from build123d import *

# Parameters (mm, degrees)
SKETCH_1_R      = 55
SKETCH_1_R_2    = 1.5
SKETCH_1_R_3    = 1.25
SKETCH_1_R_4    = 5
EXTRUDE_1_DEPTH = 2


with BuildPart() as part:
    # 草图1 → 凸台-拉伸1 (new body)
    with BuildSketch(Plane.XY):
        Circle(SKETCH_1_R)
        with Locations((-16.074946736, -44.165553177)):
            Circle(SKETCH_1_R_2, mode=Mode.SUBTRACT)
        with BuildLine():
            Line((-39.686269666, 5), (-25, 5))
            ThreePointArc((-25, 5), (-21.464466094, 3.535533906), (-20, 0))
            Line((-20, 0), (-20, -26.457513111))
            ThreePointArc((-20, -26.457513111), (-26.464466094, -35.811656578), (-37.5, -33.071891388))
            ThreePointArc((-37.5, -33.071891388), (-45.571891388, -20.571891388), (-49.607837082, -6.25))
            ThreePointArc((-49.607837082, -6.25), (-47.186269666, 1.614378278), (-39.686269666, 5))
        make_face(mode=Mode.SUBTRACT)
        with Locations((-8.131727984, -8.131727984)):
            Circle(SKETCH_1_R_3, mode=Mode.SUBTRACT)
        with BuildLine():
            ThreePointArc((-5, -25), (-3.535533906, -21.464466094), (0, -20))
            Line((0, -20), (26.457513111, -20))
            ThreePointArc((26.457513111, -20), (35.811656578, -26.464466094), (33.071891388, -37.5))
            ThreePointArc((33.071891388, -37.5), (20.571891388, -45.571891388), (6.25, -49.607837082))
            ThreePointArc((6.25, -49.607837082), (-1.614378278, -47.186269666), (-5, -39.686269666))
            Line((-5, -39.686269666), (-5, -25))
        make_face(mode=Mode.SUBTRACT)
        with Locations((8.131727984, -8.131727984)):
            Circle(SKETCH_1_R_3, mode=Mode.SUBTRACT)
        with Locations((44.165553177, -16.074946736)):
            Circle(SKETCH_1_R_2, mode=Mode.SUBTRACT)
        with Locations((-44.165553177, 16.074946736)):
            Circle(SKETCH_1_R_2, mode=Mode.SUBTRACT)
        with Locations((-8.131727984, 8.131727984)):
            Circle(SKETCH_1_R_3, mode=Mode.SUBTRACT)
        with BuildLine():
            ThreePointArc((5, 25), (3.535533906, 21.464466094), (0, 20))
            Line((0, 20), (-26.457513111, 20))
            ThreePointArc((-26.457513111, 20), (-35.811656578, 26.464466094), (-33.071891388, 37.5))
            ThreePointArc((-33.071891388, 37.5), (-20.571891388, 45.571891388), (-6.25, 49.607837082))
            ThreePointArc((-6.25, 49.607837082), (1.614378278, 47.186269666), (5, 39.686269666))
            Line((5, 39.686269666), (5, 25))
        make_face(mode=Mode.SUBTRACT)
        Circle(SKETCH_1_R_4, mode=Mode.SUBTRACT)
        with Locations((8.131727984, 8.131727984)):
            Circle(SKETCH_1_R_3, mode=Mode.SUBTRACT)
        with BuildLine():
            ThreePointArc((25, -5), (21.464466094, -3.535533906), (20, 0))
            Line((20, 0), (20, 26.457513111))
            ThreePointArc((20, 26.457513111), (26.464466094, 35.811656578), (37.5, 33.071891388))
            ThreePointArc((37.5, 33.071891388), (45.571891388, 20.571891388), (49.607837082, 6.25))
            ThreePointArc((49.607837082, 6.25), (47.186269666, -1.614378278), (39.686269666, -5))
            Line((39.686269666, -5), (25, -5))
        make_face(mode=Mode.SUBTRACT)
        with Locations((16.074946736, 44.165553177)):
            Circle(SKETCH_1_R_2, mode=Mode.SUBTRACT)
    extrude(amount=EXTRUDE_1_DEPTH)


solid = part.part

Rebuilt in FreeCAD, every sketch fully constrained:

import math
import FreeCAD as App
import Part
import Sketcher
from FreeCAD import Vector
Q = App.Units.Quantity

doc = App.newDocument("Part")
body = doc.addObject("PartDesign::Body", "Body")

sketch1 = doc.addObject("Sketcher::SketchObject", "Sketch")
body.addObject(sketch1)
sketch1.AttachmentSupport = (doc.XY_Plane, [""])
sketch1.MapMode = "FlatFace"
sketch1.addGeometry([
    Part.Circle(Vector(0, 0, 0), Vector(0, 0, 1), 55),
    Part.Circle(Vector(-16.074947, -44.165553, 0), Vector(0, 0, 1), 1.5),
    Part.ArcOfCircle(Part.Circle(Vector(-39.68627, -5, 0), Vector(0, 0, 1), 10), math.radians(90), math.radians(187.180756)),
    Part.LineSegment(Vector(-39.68627, 5, 0), Vector(-25, 5, 0)),
    Part.ArcOfCircle(Part.Circle(Vector(-25, 0, 0), Vector(0, 0, 1), 5), math.radians(0), math.radians(90)),
    Part.LineSegment(Vector(-20, 0, 0), Vector(-20, -26.457513, 0)),
    Part.ArcOfCircle(Part.Circle(Vector(-30, -26.457513, 0), Vector(0, 0, 1), 10), math.radians(-138.590378), math.radians(0)),
    Part.ArcOfCircle(Part.Circle(Vector(0, 0, 0), Vector(0, 0, 1), 50), math.radians(-172.819244), math.radians(-138.590378)),
    Part.Circle(Vector(-8.131728, -8.131728, 0), Vector(0, 0, 1), 1.25),
    Part.LineSegment(Vector(-5, -39.68627, 0), Vector(-5, -25, 0)),
    Part.ArcOfCircle(Part.Circle(Vector(0, -25, 0), Vector(0, 0, 1), 5), math.radians(90), math.radians(180)),
    Part.LineSegment(Vector(0, -20, 0), Vector(26.457513, -20, 0)),
    Part.ArcOfCircle(Part.Circle(Vector(26.457513, -30, 0), Vector(0, 0, 1), 10), math.radians(-48.590378), math.radians(90)),
    Part.ArcOfCircle(Part.Circle(Vector(0, 0, 0), Vector(0, 0, 1), 50), math.radians(-82.819244), math.radians(-48.590378)),
    Part.ArcOfCircle(Part.Circle(Vector(5, -39.68627, 0), Vector(0, 0, 1), 10), math.radians(180), math.radians(277.180756)),
    Part.Circle(Vector(8.131728, -8.131728, 0), Vector(0, 0, 1), 1.25),
    Part.Circle(Vector(44.165553, -16.074947, 0), Vector(0, 0, 1), 1.5),
    Part.Circle(Vector(-44.165553, 16.074947, 0), Vector(0, 0, 1), 1.5),
    Part.Circle(Vector(-8.131728, 8.131728, 0), Vector(0, 0, 1), 1.25),
    Part.LineSegment(Vector(5, 39.68627, 0), Vector(5, 25, 0)),
    Part.ArcOfCircle(Part.Circle(Vector(0, 25, 0), Vector(0, 0, 1), 5), math.radians(-90), math.radians(0)),
    Part.LineSegment(Vector(0, 20, 0), Vector(-26.457513, 20, 0)),
    Part.ArcOfCircle(Part.Circle(Vector(-26.457513, 30, 0), Vector(0, 0, 1), 10), math.radians(131.409622), math.radians(270)),
    Part.ArcOfCircle(Part.Circle(Vector(0, 0, 0), Vector(0, 0, 1), 50), math.radians(97.180756), math.radians(131.409622)),
    Part.ArcOfCircle(Part.Circle(Vector(-5, 39.68627, 0), Vector(0, 0, 1), 10), math.radians(0), math.radians(97.180756)),
    Part.Circle(Vector(0, 0, 0), Vector(0, 0, 1), 5),
    Part.Circle(Vector(8.131728, 8.131728, 0), Vector(0, 0, 1), 1.25),
    Part.LineSegment(Vector(39.68627, -5, 0), Vector(25, -5, 0)),
    Part.ArcOfCircle(Part.Circle(Vector(25, 0, 0), Vector(0, 0, 1), 5), math.radians(180), math.radians(270)),
    Part.LineSegment(Vector(20, 0, 0), Vector(20, 26.457513, 0)),
    Part.ArcOfCircle(Part.Circle(Vector(30, 26.457513, 0), Vector(0, 0, 1), 10), math.radians(41.409622), math.radians(180)),
    Part.ArcOfCircle(Part.Circle(Vector(0, 0, 0), Vector(0, 0, 1), 50), math.radians(7.180756), math.radians(41.409622)),
    Part.ArcOfCircle(Part.Circle(Vector(39.68627, 5, 0), Vector(0, 0, 1), 10), math.radians(-90), math.radians(7.180756)),
    Part.Circle(Vector(16.074947, 44.165553, 0), Vector(0, 0, 1), 1.5),
], False)
sketch1.addConstraint([
    Sketcher.Constraint("Tangent", 2, 1, 3, 1),
    Sketcher.Constraint("Tangent", 3, 2, 4, 2),
    Sketcher.Constraint("Tangent", 4, 1, 5, 1),
    Sketcher.Constraint("Tangent", 5, 2, 6, 2),
    Sketcher.Constraint("Tangent", 6, 1, 7, 2),
    Sketcher.Constraint("Tangent", 7, 1, 2, 2),
    Sketcher.Constraint("Tangent", 9, 2, 10, 2),
    Sketcher.Constraint("Tangent", 10, 1, 11, 1),
    Sketcher.Constraint("Tangent", 11, 2, 12, 2),
    Sketcher.Constraint("Tangent", 12, 1, 13, 2),
    Sketcher.Constraint("Tangent", 13, 1, 14, 2),
    Sketcher.Constraint("Tangent", 14, 1, 9, 1),
    Sketcher.Constraint("Tangent", 19, 2, 20, 2),
    Sketcher.Constraint("Tangent", 20, 1, 21, 1),
    Sketcher.Constraint("Tangent", 21, 2, 22, 2),
    Sketcher.Constraint("Tangent", 22, 1, 23, 2),
    Sketcher.Constraint("Tangent", 23, 1, 24, 2),
    Sketcher.Constraint("Tangent", 24, 1, 19, 1),
    Sketcher.Constraint("Tangent", 27, 2, 28, 2),
    Sketcher.Constraint("Tangent", 28, 1, 29, 1),
    Sketcher.Constraint("Tangent", 29, 2, 30, 2),
    Sketcher.Constraint("Tangent", 30, 1, 31, 2),
    Sketcher.Constraint("Tangent", 31, 1, 32, 2),
    Sketcher.Constraint("Tangent", 32, 1, 27, 1),
    Sketcher.Constraint("Horizontal", 3),
    Sketcher.Constraint("Vertical", 5),
    Sketcher.Constraint("Vertical", 9),
    Sketcher.Constraint("Horizontal", 11),
    Sketcher.Constraint("Vertical", 19),
    Sketcher.Constraint("Horizontal", 21),
    Sketcher.Constraint("Horizontal", 27),
    Sketcher.Constraint("Vertical", 29),
    Sketcher.Constraint("Coincident", 0, 3, -1, 1),
    Sketcher.Constraint("Coincident", 7, 3, -1, 1),
    Sketcher.Constraint("Coincident", 13, 3, -1, 1),
    Sketcher.Constraint("Coincident", 23, 3, -1, 1),
    Sketcher.Constraint("Coincident", 25, 3, -1, 1),
    Sketcher.Constraint("Coincident", 31, 3, -1, 1),
    Sketcher.Constraint("Equal", 2, 6),
    Sketcher.Constraint("Equal", 4, 10),
    Sketcher.Constraint("Equal", 6, 12),
    Sketcher.Constraint("Equal", 7, 13),
    Sketcher.Constraint("Equal", 12, 14),
    Sketcher.Constraint("Equal", 8, 15),
    Sketcher.Constraint("Equal", 1, 16),
    Sketcher.Constraint("Equal", 16, 17),
    Sketcher.Constraint("Equal", 15, 18),
    Sketcher.Constraint("Equal", 10, 20),
    Sketcher.Constraint("Equal", 14, 22),
    Sketcher.Constraint("Equal", 13, 23),
    Sketcher.Constraint("Equal", 22, 24),
    Sketcher.Constraint("Equal", 20, 25),
    Sketcher.Constraint("Equal", 18, 26),
    Sketcher.Constraint("Equal", 25, 28),
    Sketcher.Constraint("Equal", 24, 30),
    Sketcher.Constraint("Equal", 23, 31),
    Sketcher.Constraint("Equal", 30, 32),
    Sketcher.Constraint("Equal", 17, 33),
    Sketcher.Constraint("Symmetric", 16, 3, 17, 3, -1, 1),
    Sketcher.Constraint("Symmetric", 15, 3, 18, 3, -1, 1),
    Sketcher.Constraint("Symmetric", 10, 3, 20, 3, -1, 1),
    Sketcher.Constraint("Symmetric", 8, 3, 26, 3, -1, 1),
    Sketcher.Constraint("Symmetric", 4, 3, 28, 3, -1, 1),
    Sketcher.Constraint("Symmetric", 1, 3, 33, 3, -1, 1),
    Sketcher.Constraint("Symmetric", 8, 3, 15, 3, -2),
    Sketcher.Constraint("PointOnObject", 4, 3, -1),
    Sketcher.Constraint("PointOnObject", 10, 3, -2),
    Sketcher.Constraint("Horizontal", 32, 3, 2, 1),
    Sketcher.Constraint("Equal", 21, 5),
    Sketcher.Constraint("Diameter", 0, Q("110 mm")),
    Sketcher.Constraint("Diameter", 1, Q("3 mm")),
    Sketcher.Constraint("Diameter", 25, Q("10 mm")),
    Sketcher.Constraint("Radius", 7, Q("50 mm")),
    Sketcher.Constraint("Diameter", 8, Q("2.5 mm")),
    Sketcher.Constraint("DistanceX", 4, 3, -1, 1, Q("25 mm")),
    Sketcher.Constraint("DistanceY", 1, 3, 6, 3, Q("17.70804 mm")),
    Sketcher.Constraint("DistanceX", 2, 3, 8, 3, Q("31.554542 mm")),
    Sketcher.Constraint("DistanceX", 1, 3, 12, 3, Q("42.53246 mm")),
    Sketcher.Constraint("DistanceY", 14, 3, 8, 3, Q("31.554542 mm")),
    Sketcher.Constraint("DistanceX", 12, 3, 16, 3, Q("17.70804 mm")),
    Sketcher.Constraint("DistanceY", 16, 3, 15, 3, Q("7.943219 mm")),
])
pad1 = doc.addObject("PartDesign::Pad", "Pad")
body.addObject(pad1)
pad1.Profile = sketch1
pad1.Length = 2

doc.recompute()
